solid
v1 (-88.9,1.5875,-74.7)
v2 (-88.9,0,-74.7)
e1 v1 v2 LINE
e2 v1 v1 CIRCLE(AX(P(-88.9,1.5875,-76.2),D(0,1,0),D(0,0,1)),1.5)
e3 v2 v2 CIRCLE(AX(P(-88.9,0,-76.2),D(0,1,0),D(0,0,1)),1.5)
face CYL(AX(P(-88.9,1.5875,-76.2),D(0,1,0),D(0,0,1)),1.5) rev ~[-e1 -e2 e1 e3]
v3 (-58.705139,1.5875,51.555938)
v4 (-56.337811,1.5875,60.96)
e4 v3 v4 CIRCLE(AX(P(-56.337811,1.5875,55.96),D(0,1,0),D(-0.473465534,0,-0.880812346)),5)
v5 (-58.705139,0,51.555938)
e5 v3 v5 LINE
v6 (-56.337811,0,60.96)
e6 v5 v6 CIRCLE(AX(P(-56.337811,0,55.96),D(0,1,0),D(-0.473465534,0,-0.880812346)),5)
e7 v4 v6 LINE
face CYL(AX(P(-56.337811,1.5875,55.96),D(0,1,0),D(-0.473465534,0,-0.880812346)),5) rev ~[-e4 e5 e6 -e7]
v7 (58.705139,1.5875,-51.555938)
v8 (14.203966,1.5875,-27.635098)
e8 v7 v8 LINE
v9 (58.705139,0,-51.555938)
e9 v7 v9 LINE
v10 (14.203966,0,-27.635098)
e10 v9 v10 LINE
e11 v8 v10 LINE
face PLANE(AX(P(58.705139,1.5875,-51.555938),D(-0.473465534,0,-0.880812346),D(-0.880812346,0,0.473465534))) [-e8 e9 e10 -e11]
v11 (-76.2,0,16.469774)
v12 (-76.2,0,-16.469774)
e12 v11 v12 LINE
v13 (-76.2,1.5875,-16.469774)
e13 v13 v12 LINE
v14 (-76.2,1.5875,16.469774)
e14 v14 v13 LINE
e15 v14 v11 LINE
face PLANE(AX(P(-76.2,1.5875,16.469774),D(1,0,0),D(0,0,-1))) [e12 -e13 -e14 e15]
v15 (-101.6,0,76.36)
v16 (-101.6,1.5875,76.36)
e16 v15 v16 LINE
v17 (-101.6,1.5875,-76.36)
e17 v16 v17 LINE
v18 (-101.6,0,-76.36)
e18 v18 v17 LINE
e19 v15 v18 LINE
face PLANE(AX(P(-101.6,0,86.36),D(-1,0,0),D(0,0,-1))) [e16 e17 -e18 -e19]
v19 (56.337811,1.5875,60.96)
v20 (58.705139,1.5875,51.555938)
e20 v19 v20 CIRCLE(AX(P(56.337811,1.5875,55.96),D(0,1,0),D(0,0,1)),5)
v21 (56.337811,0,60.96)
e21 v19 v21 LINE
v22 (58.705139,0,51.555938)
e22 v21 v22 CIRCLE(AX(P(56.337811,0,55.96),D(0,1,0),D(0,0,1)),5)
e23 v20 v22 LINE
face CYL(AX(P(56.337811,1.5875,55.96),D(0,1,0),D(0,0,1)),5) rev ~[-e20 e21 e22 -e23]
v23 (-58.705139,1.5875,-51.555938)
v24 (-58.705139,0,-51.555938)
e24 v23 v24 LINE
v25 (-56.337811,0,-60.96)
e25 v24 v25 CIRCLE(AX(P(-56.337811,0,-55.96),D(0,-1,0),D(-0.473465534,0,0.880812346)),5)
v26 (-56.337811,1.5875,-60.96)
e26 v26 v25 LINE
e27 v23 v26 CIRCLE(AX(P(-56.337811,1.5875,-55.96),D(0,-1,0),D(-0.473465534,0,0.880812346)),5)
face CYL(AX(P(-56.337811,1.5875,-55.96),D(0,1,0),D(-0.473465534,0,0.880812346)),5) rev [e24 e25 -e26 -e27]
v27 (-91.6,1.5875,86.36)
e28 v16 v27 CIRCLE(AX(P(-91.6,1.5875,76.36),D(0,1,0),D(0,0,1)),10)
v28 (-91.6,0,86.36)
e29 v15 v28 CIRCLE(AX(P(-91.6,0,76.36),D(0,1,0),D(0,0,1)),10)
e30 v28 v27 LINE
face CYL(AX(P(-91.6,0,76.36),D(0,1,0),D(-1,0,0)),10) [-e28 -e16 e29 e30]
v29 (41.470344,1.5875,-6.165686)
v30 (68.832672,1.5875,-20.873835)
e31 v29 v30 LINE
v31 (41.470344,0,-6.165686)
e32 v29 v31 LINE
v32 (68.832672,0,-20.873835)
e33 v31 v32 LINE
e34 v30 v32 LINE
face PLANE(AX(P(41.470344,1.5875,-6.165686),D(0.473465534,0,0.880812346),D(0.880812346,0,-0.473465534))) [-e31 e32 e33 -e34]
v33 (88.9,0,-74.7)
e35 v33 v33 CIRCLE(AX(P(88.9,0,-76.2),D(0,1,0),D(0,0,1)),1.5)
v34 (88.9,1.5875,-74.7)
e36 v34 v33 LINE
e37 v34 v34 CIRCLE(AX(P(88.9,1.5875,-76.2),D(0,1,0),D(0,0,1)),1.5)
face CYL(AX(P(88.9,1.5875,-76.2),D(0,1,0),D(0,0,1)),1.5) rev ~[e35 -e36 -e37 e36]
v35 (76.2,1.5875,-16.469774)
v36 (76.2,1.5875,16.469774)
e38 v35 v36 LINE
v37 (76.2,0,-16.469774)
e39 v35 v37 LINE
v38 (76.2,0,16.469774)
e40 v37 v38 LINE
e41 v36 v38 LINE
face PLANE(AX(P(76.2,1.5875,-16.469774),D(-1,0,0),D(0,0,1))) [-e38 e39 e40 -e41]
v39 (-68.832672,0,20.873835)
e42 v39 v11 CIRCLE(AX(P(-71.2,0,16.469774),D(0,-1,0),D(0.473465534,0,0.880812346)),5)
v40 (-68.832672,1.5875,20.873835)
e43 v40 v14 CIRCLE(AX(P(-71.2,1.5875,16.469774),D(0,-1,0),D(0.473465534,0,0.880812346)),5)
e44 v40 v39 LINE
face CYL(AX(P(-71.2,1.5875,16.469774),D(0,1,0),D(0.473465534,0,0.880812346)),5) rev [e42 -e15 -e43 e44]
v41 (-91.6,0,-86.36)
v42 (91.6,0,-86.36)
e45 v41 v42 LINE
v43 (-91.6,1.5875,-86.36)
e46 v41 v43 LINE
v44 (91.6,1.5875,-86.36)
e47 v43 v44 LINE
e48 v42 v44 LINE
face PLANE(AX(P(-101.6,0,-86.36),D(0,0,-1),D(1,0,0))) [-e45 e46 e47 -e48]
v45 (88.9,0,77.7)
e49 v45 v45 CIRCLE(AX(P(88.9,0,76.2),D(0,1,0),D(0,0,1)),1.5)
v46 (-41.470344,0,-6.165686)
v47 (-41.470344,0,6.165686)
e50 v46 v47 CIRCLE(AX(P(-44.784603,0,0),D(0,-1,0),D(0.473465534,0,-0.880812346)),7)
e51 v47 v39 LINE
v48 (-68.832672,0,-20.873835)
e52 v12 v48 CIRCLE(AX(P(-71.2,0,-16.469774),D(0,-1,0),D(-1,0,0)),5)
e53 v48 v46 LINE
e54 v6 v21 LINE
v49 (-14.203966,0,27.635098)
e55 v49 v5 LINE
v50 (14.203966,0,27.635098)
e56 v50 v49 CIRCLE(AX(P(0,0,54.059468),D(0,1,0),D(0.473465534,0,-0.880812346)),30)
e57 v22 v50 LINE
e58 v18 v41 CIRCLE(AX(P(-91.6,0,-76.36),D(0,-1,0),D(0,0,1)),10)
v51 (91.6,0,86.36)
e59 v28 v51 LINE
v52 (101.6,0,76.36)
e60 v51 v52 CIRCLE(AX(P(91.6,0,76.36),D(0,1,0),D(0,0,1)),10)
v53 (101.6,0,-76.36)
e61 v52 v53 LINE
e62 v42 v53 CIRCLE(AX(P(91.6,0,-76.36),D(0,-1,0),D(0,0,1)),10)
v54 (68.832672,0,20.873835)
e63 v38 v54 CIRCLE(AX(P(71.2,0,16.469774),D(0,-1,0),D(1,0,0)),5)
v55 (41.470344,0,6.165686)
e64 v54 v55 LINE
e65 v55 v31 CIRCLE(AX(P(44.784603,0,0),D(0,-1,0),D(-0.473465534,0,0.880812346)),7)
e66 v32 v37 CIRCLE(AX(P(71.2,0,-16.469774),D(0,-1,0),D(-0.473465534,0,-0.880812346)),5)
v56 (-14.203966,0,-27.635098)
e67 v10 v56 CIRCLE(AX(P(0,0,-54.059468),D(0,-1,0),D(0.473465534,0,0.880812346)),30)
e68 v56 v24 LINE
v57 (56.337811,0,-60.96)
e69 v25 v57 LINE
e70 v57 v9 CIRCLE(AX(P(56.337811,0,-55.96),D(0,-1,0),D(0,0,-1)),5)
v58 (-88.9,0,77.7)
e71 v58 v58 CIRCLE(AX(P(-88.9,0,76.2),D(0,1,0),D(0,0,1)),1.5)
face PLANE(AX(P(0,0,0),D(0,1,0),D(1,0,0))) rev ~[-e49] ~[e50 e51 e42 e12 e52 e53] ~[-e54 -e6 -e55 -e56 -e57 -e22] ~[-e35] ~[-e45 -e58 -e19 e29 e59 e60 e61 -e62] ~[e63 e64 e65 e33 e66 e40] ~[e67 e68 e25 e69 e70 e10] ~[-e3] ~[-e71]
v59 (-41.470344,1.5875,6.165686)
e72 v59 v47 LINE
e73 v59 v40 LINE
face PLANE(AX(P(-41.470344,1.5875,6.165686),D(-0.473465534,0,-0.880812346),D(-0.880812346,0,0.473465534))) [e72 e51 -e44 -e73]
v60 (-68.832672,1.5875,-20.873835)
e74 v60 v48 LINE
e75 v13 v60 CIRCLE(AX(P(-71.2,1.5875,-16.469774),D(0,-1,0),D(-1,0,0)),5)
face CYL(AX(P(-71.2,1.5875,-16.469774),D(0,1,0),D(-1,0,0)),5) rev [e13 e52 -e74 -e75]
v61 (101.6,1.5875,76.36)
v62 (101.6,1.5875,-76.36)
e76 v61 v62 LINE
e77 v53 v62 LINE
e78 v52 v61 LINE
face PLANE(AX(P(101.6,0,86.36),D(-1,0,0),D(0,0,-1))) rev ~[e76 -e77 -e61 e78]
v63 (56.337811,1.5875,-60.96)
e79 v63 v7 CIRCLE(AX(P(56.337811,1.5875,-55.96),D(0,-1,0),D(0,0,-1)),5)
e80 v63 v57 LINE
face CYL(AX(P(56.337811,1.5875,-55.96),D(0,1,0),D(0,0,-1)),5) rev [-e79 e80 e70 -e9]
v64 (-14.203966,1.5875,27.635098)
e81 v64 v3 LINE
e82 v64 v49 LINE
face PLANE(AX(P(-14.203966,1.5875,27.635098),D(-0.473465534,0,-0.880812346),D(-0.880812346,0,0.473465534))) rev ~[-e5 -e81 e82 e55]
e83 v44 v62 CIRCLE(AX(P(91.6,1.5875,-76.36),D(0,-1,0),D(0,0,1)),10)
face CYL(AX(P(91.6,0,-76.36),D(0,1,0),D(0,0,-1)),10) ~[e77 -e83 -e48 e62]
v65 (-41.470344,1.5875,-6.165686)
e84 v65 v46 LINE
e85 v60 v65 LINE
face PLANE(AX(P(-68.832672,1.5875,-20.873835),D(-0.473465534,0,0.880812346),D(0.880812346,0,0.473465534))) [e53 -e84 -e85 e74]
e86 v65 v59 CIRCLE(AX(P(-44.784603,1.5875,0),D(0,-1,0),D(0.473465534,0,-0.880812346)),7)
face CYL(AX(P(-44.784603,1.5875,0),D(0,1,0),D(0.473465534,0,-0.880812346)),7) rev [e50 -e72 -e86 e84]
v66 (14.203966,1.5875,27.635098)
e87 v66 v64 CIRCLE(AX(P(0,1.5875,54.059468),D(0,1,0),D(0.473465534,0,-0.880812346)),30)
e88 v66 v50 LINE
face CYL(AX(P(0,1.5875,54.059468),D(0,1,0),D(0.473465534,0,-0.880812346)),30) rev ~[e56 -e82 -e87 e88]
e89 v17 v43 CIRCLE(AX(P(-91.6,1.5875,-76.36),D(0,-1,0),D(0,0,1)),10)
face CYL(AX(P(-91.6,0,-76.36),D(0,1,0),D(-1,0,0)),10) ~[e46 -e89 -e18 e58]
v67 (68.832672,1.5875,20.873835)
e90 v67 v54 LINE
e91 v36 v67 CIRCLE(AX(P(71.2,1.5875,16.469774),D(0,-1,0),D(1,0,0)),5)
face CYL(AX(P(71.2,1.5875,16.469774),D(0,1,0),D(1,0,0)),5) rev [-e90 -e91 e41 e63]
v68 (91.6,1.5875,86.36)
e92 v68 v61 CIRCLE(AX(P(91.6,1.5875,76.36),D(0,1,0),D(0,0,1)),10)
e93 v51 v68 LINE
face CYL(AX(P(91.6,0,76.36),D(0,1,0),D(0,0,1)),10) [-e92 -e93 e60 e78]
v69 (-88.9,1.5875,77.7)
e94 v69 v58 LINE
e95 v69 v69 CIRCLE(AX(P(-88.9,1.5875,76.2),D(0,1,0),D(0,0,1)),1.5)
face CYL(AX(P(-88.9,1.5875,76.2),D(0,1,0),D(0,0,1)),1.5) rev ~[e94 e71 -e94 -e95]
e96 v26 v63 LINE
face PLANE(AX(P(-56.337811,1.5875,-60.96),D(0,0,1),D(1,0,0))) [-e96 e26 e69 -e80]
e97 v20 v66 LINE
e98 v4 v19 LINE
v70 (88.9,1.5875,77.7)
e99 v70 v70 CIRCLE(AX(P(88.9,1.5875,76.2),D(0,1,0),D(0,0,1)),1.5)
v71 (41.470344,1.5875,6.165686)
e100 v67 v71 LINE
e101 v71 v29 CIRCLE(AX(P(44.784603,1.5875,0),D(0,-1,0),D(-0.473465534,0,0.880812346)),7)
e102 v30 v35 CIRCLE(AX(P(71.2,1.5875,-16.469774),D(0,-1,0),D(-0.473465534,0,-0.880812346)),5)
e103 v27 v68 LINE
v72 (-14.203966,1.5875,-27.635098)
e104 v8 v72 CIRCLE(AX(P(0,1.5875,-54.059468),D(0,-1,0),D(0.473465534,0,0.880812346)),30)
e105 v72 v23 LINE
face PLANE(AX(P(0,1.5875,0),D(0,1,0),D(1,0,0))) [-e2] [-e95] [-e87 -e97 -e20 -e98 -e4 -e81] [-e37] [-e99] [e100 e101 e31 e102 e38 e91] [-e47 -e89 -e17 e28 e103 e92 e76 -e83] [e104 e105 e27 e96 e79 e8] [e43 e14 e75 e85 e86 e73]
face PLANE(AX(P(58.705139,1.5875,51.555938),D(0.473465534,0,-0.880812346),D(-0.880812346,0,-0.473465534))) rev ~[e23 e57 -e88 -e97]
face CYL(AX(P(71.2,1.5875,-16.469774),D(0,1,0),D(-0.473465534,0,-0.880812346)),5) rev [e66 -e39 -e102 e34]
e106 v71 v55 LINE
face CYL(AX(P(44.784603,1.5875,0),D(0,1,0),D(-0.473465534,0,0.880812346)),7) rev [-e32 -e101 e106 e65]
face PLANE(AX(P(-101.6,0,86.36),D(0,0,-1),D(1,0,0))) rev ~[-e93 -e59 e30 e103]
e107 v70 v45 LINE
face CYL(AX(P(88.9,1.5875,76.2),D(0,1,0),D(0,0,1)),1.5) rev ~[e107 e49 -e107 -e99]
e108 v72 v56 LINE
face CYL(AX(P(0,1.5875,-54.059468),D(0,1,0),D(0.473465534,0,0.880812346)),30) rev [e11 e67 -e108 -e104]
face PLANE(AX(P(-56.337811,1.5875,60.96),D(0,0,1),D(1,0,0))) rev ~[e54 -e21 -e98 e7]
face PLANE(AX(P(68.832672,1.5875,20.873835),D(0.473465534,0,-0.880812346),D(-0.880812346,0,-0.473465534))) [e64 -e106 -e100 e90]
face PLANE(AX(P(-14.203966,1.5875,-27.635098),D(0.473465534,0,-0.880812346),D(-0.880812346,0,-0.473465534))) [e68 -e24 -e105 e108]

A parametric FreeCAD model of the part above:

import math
import FreeCAD as App
import Part
import Sketcher


def edges_at(feature, points):
    """Names of the edges that pass closest to the given points."""
    edges = feature.Shape.Edges
    near = lambda p: min(range(len(edges)), key=lambda i: edges[i].distToShape(Part.Vertex(*p))[0])
    return sorted({f"Edge{near(p) + 1}" for p in points})


def add_polygon(sketch, points):
    """Adds a closed chain of lines whose ends are joined by coincident constraints."""
    first, n = sketch.GeometryCount, len(points)
    for a, b in zip(points, points[1:] + points[:1]):
        sketch.addGeometry(Part.LineSegment(App.Vector(*a, 0), App.Vector(*b, 0)), False)
    for i in range(n):
        sketch.addConstraint(Sketcher.Constraint("Coincident", first + i, 2, first + (i + 1) % n, 1))

doc = App.newDocument("Part")
body = doc.addObject("PartDesign::Body", "Body")

# Sketch on XZ plane
sketch1 = body.newObject("Sketcher::SketchObject", "Sketch")
sketch1.AttachmentSupport = (doc.getObject("XZ_Plane"), [""])
sketch1.MapMode = "FlatFace"
add_polygon(sketch1, [(-102, -86), (-102, 86), (102, 86), (102, -86)])  # lines 0-3
sketch1.addConstraint(Sketcher.Constraint("Vertical", 0))
sketch1.addConstraint(Sketcher.Constraint("Horizontal", 1))
sketch1.addConstraint(Sketcher.Constraint("Vertical", 2))
sketch1.addConstraint(Sketcher.Constraint("Horizontal", 3))
sketch1.addConstraint(Sketcher.Constraint("Symmetric", 0, 2, 2, 2, -1, 1))
sketch1.addConstraint(Sketcher.Constraint("DistanceX", 1, 1, 1, 2, 203.2))
sketch1.addConstraint(Sketcher.Constraint("DistanceY", 0, 1, 0, 2, 172.72))
pad1 = body.newObject("PartDesign::Pad", "Pad")
pad1.Profile = sketch1
pad1.Length = 1.5875
pad1.Reversed = True

# Sketch on XZ plane
sketch2 = body.newObject("Sketcher::SketchObject", "Sketch001")
sketch2.AttachmentSupport = (doc.getObject("XZ_Plane"), [""])
sketch2.MapMode = "FlatFace"
sketch2.AttachmentOffset = App.Placement(App.Vector(0, 0, -1.5875), App.Rotation())
sketch2.addGeometry(Part.LineSegment(App.Vector(56, -61, 0), App.Vector(-56, -61, 0)), False)
sketch2.addGeometry(Part.ArcOfCircle(Part.Circle(App.Vector(-56, -56, 0), App.Vector(0, 0, 1), 5), math.radians(118), math.radians(270)), False)
sketch2.addGeometry(Part.LineSegment(App.Vector(-59, -52, 0), App.Vector(-14, -28, 0)), False)
sketch2.addGeometry(Part.ArcOfCircle(Part.Circle(App.Vector(0, -54, 0), App.Vector(0, 0, 1), 30), math.radians(62), math.radians(118)), False)
sketch2.addGeometry(Part.LineSegment(App.Vector(14, -28, 0), App.Vector(59, -52, 0)), False)
sketch2.addGeometry(Part.ArcOfCircle(Part.Circle(App.Vector(56, -56, 0), App.Vector(0, 0, 1), 5), math.radians(-90), math.radians(62)), False)
sketch2.addGeometry(Part.LineSegment(App.Vector(-56, 61, 0), App.Vector(56, 61, 0)), False)
sketch2.addGeometry(Part.ArcOfCircle(Part.Circle(App.Vector(56, 56, 0), App.Vector(0, 0, 1), 5), math.radians(-62), math.radians(90)), False)
sketch2.addGeometry(Part.LineSegment(App.Vector(59, 52, 0), App.Vector(14, 28, 0)), False)
sketch2.addGeometry(Part.ArcOfCircle(Part.Circle(App.Vector(0, 54, 0), App.Vector(0, 0, 1), 30), math.radians(-118), math.radians(-62)), False)
sketch2.addGeometry(Part.LineSegment(App.Vector(-14, 28, 0), App.Vector(-59, 52, 0)), False)
sketch2.addGeometry(Part.ArcOfCircle(Part.Circle(App.Vector(-56, 56, 0), App.Vector(0, 0, 1), 5), math.radians(90), math.radians(242)), False)
sketch2.addGeometry(Part.LineSegment(App.Vector(-41, -6, 0), App.Vector(-69, -21, 0)), False)
sketch2.addGeometry(Part.ArcOfCircle(Part.Circle(App.Vector(-71, -16, 0), App.Vector(0, 0, 1), 5), math.radians(180), math.radians(298)), False)
sketch2.addGeometry(Part.LineSegment(App.Vector(-76, -16, 0), App.Vector(-76, 16, 0)), False)
sketch2.addGeometry(Part.ArcOfCircle(Part.Circle(App.Vector(-71, 16, 0), App.Vector(0, 0, 1), 5), math.radians(62), math.radians(180)), False)
sketch2.addGeometry(Part.LineSegment(App.Vector(-69, 21, 0), App.Vector(-41, 6, 0)), False)
sketch2.addGeometry(Part.ArcOfCircle(Part.Circle(App.Vector(-45, 0, 0), App.Vector(0, 0, 1), 7), math.radians(-62), math.radians(62)), False)
sketch2.addGeometry(Part.LineSegment(App.Vector(69, -21, 0), App.Vector(41, -6, 0)), False)
sketch2.addGeometry(Part.ArcOfCircle(Part.Circle(App.Vector(45, 0, 0), App.Vector(0, 0, 1), 7), math.radians(118), math.radians(242)), False)
sketch2.addGeometry(Part.LineSegment(App.Vector(41, 6, 0), App.Vector(69, 21, 0)), False)
sketch2.addGeometry(Part.ArcOfCircle(Part.Circle(App.Vector(71, 16, 0), App.Vector(0, 0, 1), 5), math.radians(0), math.radians(118)), False)
sketch2.addGeometry(Part.LineSegment(App.Vector(76, 16, 0), App.Vector(76, -16, 0)), False)
sketch2.addGeometry(Part.ArcOfCircle(Part.Circle(App.Vector(71, -16, 0), App.Vector(0, 0, 1), 5), math.radians(-118), math.radians(0)), False)
sketch2.addConstraint(Sketcher.Constraint("Tangent", 0, 2, 1, 2))
sketch2.addConstraint(Sketcher.Constraint("Tangent", 1, 1, 2, 1))
sketch2.addConstraint(Sketcher.Constraint("Tangent", 2, 2, 3, 2))
sketch2.addConstraint(Sketcher.Constraint("Tangent", 3, 1, 4, 1))
sketch2.addConstraint(Sketcher.Constraint("Tangent", 4, 2, 5, 2))
sketch2.addConstraint(Sketcher.Constraint("Tangent", 5, 1, 0, 1))
sketch2.addConstraint(Sketcher.Constraint("Tangent", 6, 2, 7, 2))
sketch2.addConstraint(Sketcher.Constraint("Tangent", 7, 1, 8, 1))
sketch2.addConstraint(Sketcher.Constraint("Tangent", 8, 2, 9, 2))
sketch2.addConstraint(Sketcher.Constraint("Tangent", 9, 1, 10, 1))
sketch2.addConstraint(Sketcher.Constraint("Tangent", 10, 2, 11, 2))
sketch2.addConstraint(Sketcher.Constraint("Tangent", 11, 1, 6, 1))
sketch2.addConstraint(Sketcher.Constraint("Tangent", 12, 2, 13, 2))
sketch2.addConstraint(Sketcher.Constraint("Tangent", 13, 1, 14, 1))
sketch2.addConstraint(Sketcher.Constraint("Tangent", 14, 2, 15, 2))
sketch2.addConstraint(Sketcher.Constraint("Tangent", 15, 1, 16, 1))
sketch2.addConstraint(Sketcher.Constraint("Tangent", 16, 2, 17, 2))
sketch2.addConstraint(Sketcher.Constraint("Tangent", 17, 1, 12, 1))
sketch2.addConstraint(Sketcher.Constraint("Tangent", 18, 2, 19, 2))
sketch2.addConstraint(Sketcher.Constraint("Tangent", 19, 1, 20, 1))
sketch2.addConstraint(Sketcher.Constraint("Tangent", 20, 2, 21, 2))
sketch2.addConstraint(Sketcher.Constraint("Tangent", 21, 1, 22, 1))
sketch2.addConstraint(Sketcher.Constraint("Tangent", 22, 2, 23, 2))
sketch2.addConstraint(Sketcher.Constraint("Tangent", 23, 1, 18, 1))
sketch2.addConstraint(Sketcher.Constraint("Horizontal", 0))
sketch2.addConstraint(Sketcher.Constraint("Horizontal", 6))
sketch2.addConstraint(Sketcher.Constraint("Vertical", 14))
sketch2.addConstraint(Sketcher.Constraint("Vertical", 22))
sketch2.addConstraint(Sketcher.Constraint("Equal", 1, 5))
sketch2.addConstraint(Sketcher.Constraint("Equal", 5, 7))
sketch2.addConstraint(Sketcher.Constraint("Equal", 3, 9))
sketch2.addConstraint(Sketcher.Constraint("Equal", 7, 11))
sketch2.addConstraint(Sketcher.Constraint("Equal", 11, 13))
sketch2.addConstraint(Sketcher.Constraint("Equal", 13, 15))
sketch2.addConstraint(Sketcher.Constraint("Equal", 17, 19))
sketch2.addConstraint(Sketcher.Constraint("Equal", 15, 21))
sketch2.addConstraint(Sketcher.Constraint("Equal", 21, 23))
sketch2.addConstraint(Sketcher.Constraint("Symmetric", 1, 3, 7, 3, -1, 1))
sketch2.addConstraint(Sketcher.Constraint("Symmetric", 3, 3, 9, 3, -1, 1))
sketch2.addConstraint(Sketcher.Constraint("Symmetric", 17, 3, 19, 3, -1, 1))
sketch2.addConstraint(Sketcher.Constraint("Symmetric", 13, 3, 21, 3, -1, 1))
sketch2.addConstraint(Sketcher.Constraint("Symmetric", 2, 2, 3, 1, -2))
sketch2.addConstraint(Sketcher.Constraint("Symmetric", 17, 1, 18, 2, -2))
sketch2.addConstraint(Sketcher.Constraint("Parallel", 4, 10))
sketch2.addConstraint(Sketcher.Constraint("Parallel", 8, 12))
sketch2.addConstraint(Sketcher.Constraint("Parallel", 10, 16))
sketch2.addConstraint(Sketcher.Constraint("Radius", 1, 5.0))
sketch2.addConstraint(Sketcher.Constraint("Radius", 3, 30.0))
sketch2.addConstraint(Sketcher.Constraint("Radius", 17, 7.0))
sketch2.addConstraint(Sketcher.Constraint("DistanceX", 13, 3, -1, 1, 71.2))
sketch2.addConstraint(Sketcher.Constraint("DistanceY", 1, 3, -1, 1, 55.96))
sketch2.addConstraint(Sketcher.Constraint("DistanceX", 0, 2, 0, 1, 112.675623))
sketch2.addConstraint(Sketcher.Constraint("DistanceY", 14, 1, 14, 2, 32.939547))
sketch2.addConstraint(Sketcher.Constraint("DistanceY", 3, 3, -1, 1, 54.059468))
pocket1 = body.newObject("PartDesign::Pocket", "Pocket")
pocket1.Profile = sketch2
pocket1.Length = 1.5875
pocket1.Reversed = True

# Sketch on XZ plane
sketch3 = body.newObject("Sketcher::SketchObject", "Sketch002")
sketch3.AttachmentSupport = (doc.getObject("XZ_Plane"), [""])
sketch3.MapMode = "FlatFace"
sketch3.AttachmentOffset = App.Placement(App.Vector(0, 0, -1.5875), App.Rotation())
sketch3.addGeometry(Part.Circle(App.Vector(-88.9, -76.2, 0), App.Vector(0, 0, 1), 1.5), False)
sketch3.addGeometry(Part.Circle(App.Vector(88.9, -76.2, 0), App.Vector(0, 0, 1), 1.5), False)
sketch3.addGeometry(Part.Circle(App.Vector(88.9, 76.2, 0), App.Vector(0, 0, 1), 1.5), False)
sketch3.addGeometry(Part.Circle(App.Vector(-88.9, 76.2, 0), App.Vector(0, 0, 1), 1.5), False)
sketch3.addConstraint(Sketcher.Constraint("Equal", 0, 1))
sketch3.addConstraint(Sketcher.Constraint("Equal", 1, 2))
sketch3.addConstraint(Sketcher.Constraint("Equal", 2, 3))
sketch3.addConstraint(Sketcher.Constraint("Symmetric", 0, 3, 2, 3, -1, 1))
sketch3.addConstraint(Sketcher.Constraint("Symmetric", 1, 3, 3, 3, -1, 1))
sketch3.addConstraint(Sketcher.Constraint("Symmetric", 0, 3, 1, 3, -2))
sketch3.addConstraint(Sketcher.Constraint("Diameter", 0, 3.0))
sketch3.addConstraint(Sketcher.Constraint("DistanceX", 0, 3, -1, 1, 88.9))
sketch3.addConstraint(Sketcher.Constraint("DistanceY", 0, 3, -1, 1, 76.2))
pocket2 = body.newObject("PartDesign::Pocket", "Pocket001")
pocket2.Profile = sketch3
pocket2.Length = 1.5875
pocket2.Reversed = True
doc.recompute()

fillet = body.newObject("PartDesign::Fillet", "Fillet")
fillet.Base = (pocket2, edges_at(pocket2, [
    (101.6, 0.794, 86.36),
    (-101.6, 0.794, 86.36),
    (-101.6, 0.794, -86.36),
    (101.6, 0.794, -86.36),
]))
fillet.Radius = 10

doc.recompute()
